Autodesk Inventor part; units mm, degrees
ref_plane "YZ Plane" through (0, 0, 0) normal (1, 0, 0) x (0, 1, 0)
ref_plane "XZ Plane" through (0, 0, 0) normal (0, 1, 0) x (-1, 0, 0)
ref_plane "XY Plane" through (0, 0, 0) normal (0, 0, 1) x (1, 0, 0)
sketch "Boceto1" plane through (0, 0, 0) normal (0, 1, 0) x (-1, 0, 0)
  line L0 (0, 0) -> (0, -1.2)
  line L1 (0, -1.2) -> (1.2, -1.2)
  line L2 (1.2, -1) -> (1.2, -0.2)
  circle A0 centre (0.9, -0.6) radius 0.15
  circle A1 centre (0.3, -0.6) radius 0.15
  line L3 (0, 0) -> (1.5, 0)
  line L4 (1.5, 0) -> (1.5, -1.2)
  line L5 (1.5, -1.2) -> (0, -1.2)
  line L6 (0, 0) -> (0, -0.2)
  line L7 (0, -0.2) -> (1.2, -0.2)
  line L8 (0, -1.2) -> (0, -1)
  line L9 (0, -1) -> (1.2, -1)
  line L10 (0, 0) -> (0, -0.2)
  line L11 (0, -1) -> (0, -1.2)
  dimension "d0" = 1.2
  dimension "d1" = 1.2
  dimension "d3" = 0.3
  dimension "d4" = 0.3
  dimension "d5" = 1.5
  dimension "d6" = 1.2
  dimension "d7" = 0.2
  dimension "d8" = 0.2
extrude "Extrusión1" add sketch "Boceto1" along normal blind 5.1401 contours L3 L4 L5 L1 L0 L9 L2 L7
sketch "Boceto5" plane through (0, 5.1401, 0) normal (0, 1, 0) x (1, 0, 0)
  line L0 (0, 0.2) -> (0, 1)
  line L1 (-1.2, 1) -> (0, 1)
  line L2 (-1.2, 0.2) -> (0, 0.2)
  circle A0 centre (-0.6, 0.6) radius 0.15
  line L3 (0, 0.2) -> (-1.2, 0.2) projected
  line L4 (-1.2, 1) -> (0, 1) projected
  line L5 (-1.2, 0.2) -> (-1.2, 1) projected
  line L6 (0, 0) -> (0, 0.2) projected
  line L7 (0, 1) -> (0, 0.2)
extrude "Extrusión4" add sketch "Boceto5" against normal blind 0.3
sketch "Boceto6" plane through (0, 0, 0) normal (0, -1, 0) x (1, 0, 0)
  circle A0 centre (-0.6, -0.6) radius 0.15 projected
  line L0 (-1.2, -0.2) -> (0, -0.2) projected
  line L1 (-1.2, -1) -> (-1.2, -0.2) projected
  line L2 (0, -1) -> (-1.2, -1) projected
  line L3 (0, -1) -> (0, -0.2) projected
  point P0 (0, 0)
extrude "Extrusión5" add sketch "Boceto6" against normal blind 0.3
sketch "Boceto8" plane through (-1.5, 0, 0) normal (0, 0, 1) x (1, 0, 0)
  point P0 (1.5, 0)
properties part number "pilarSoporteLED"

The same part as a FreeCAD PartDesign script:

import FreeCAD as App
import Part
import Sketcher

V = App.Vector
Q = App.Units.Quantity


def add_polygon(sketch, points):
    """Adds a closed chain of lines whose ends are joined by coincident constraints."""
    first, n = sketch.GeometryCount, len(points)
    for a, b in zip(points, points[1:] + points[:1]):
        sketch.addGeometry(Part.LineSegment(App.Vector(*a, 0), App.Vector(*b, 0)), False)
    for i in range(n):
        sketch.addConstraint(Sketcher.Constraint("Coincident", first + i, 2, first + (i + 1) % n, 1))

doc = App.newDocument("Part")
params = doc.addObject("Spreadsheet::Sheet", "Params")
for row, (alias, value) in enumerate([
    ("sketch1_width", "1.5 mm"),
    ("sketch1_width2", "1.2 mm"),
    ("sketch1_height", "0.2 mm"),
    ("pad1_length", "5.1401 mm"),
    ("sketch2_diameter", "0.3 mm"),
    ("sketch2_width", "1.2 mm"),
    ("sketch2_height", "0.8 mm"),
    ("pad2_length", "0.3 mm"),
    ("sketch3_diameter", "0.3 mm"),
    ("sketch3_width", "1.2 mm"),
    ("sketch3_height", "0.8 mm"),
    ("pad3_length", "0.3 mm"),
], start=1):
    params.set(f"A{row}", alias)
    params.set(f"B{row}", "=" + value)
    params.setAlias(f"B{row}", alias)

body = doc.addObject("PartDesign::Body", "Body")

# Sketch on XZ plane
sketch1 = doc.addObject("Sketcher::SketchObject", "Sketch")
body.addObject(sketch1)
sketch1.AttachmentSupport = (doc.XZ_Plane, [""])
sketch1.MapMode = "FlatFace"
add_polygon(sketch1, [(-1.5, 0), (0, 0), (0, -0.2), (-1.2, -0.2), (-1.2, -1), (0, -1), (0, -1.2), (-1.5, -1.2)])  # lines 0-7
sketch1.addConstraint([
    Sketcher.Constraint("Horizontal", 0),
    Sketcher.Constraint("Vertical", 1),
    Sketcher.Constraint("Horizontal", 2),
    Sketcher.Constraint("Vertical", 3),
    Sketcher.Constraint("Horizontal", 4),
    Sketcher.Constraint("Vertical", 5),
    Sketcher.Constraint("Horizontal", 6),
    Sketcher.Constraint("Vertical", 7),
    Sketcher.Constraint("Coincident", 0, 2, -1, 1),
    Sketcher.Constraint("PointOnObject", 4, 2, -2),
    Sketcher.Constraint("Equal", 1, 5),
    Sketcher.Constraint("Equal", 4, 7),
    Sketcher.Constraint("DistanceX", 0, 1, 0, 2, Q("1.5 mm")),
    Sketcher.Constraint("DistanceX", 2, 2, 2, 1, Q("1.2 mm")),
    Sketcher.Constraint("DistanceY", 1, 2, 1, 1, Q("0.2 mm")),
])
sketch1.setExpression("Constraints[20]", "Params.sketch1_width")
sketch1.setExpression("Constraints[21]", "Params.sketch1_width2")
sketch1.setExpression("Constraints[22]", "Params.sketch1_height")
pad1 = doc.addObject("PartDesign::Pad", "Pad")
body.addObject(pad1)
pad1.Profile = sketch1
pad1.setExpression("Length", "Params.pad1_length")
pad1.Reversed = True

# Sketch on XZ plane
sketch2 = doc.addObject("Sketcher::SketchObject", "Sketch001")
body.addObject(sketch2)
sketch2.AttachmentSupport = (doc.XZ_Plane, [""])
sketch2.MapMode = "FlatFace"
sketch2.AttachmentOffset = App.Placement(V(0, 0, -5.1401), App.Rotation())
add_polygon(sketch2, [(-1.2, -0.2), (0, -0.2), (0, -1), (-1.2, -1)])  # lines 0-3
sketch2.addGeometry(Part.Circle(V(-0.6, -0.6, 0), V(0, 0, 1), 0.15), False)  # 4
sketch2.addConstraint([
    Sketcher.Constraint("Horizontal", 0),
    Sketcher.Constraint("Vertical", 1),
    Sketcher.Constraint("Horizontal", 2),
    Sketcher.Constraint("Vertical", 3),
    Sketcher.Constraint("PointOnObject", 0, 2, -2),
    Sketcher.Constraint("Diameter", 4, Q("0.3 mm")),
    Sketcher.Constraint("DistanceX", 0, 1, 0, 2, Q("1.2 mm")),
    Sketcher.Constraint("DistanceY", 1, 2, 1, 1, Q("0.8 mm")),
    Sketcher.Constraint("DistanceY", 1, 2, -1, 1, Q("1 mm")),
    Sketcher.Constraint("DistanceX", 4, 3, -1, 1, Q("0.6 mm")),
    Sketcher.Constraint("DistanceY", 4, 3, -1, 1, Q("0.6 mm")),
])
sketch2.setExpression("Constraints[9]", "Params.sketch2_diameter")
sketch2.setExpression("Constraints[10]", "Params.sketch2_width")
sketch2.setExpression("Constraints[11]", "Params.sketch2_height")
pad2 = doc.addObject("PartDesign::Pad", "Pad001")
body.addObject(pad2)
pad2.Profile = sketch2
pad2.setExpression("Length", "Params.pad2_length")

# Sketch on XZ plane
sketch3 = doc.addObject("Sketcher::SketchObject", "Sketch002")
body.addObject(sketch3)
sketch3.AttachmentSupport = (doc.XZ_Plane, [""])
sketch3.MapMode = "FlatFace"
add_polygon(sketch3, [(0, -0.2), (-1.2, -0.2), (-1.2, -1), (0, -1)])  # lines 0-3
sketch3.addGeometry(Part.Circle(V(-0.6, -0.6, 0), V(0, 0, 1), 0.15), False)  # 4
sketch3.addConstraint([
    Sketcher.Constraint("Horizontal", 0),
    Sketcher.Constraint("Vertical", 1),
    Sketcher.Constraint("Horizontal", 2),
    Sketcher.Constraint("Vertical", 3),
    Sketcher.Constraint("PointOnObject", 2, 2, -2),
    Sketcher.Constraint("Diameter", 4, Q("0.3 mm")),
    Sketcher.Constraint("DistanceX", 0, 2, 0, 1, Q("1.2 mm")),
    Sketcher.Constraint("DistanceY", 1, 2, 1, 1, Q("0.8 mm")),
    Sketcher.Constraint("DistanceY", 1, 2, -1, 1, Q("1 mm")),
    Sketcher.Constraint("DistanceX", 4, 3, -1, 1, Q("0.6 mm")),
    Sketcher.Constraint("DistanceY", 4, 3, -1, 1, Q("0.6 mm")),
])
sketch3.setExpression("Constraints[9]", "Params.sketch3_diameter")
sketch3.setExpression("Constraints[10]", "Params.sketch3_width")
sketch3.setExpression("Constraints[11]", "Params.sketch3_height")
pad3 = doc.addObject("PartDesign::Pad", "Pad002")
body.addObject(pad3)
pad3.Profile = sketch3
pad3.setExpression("Length", "Params.pad3_length")
pad3.Reversed = True

doc.recompute()
